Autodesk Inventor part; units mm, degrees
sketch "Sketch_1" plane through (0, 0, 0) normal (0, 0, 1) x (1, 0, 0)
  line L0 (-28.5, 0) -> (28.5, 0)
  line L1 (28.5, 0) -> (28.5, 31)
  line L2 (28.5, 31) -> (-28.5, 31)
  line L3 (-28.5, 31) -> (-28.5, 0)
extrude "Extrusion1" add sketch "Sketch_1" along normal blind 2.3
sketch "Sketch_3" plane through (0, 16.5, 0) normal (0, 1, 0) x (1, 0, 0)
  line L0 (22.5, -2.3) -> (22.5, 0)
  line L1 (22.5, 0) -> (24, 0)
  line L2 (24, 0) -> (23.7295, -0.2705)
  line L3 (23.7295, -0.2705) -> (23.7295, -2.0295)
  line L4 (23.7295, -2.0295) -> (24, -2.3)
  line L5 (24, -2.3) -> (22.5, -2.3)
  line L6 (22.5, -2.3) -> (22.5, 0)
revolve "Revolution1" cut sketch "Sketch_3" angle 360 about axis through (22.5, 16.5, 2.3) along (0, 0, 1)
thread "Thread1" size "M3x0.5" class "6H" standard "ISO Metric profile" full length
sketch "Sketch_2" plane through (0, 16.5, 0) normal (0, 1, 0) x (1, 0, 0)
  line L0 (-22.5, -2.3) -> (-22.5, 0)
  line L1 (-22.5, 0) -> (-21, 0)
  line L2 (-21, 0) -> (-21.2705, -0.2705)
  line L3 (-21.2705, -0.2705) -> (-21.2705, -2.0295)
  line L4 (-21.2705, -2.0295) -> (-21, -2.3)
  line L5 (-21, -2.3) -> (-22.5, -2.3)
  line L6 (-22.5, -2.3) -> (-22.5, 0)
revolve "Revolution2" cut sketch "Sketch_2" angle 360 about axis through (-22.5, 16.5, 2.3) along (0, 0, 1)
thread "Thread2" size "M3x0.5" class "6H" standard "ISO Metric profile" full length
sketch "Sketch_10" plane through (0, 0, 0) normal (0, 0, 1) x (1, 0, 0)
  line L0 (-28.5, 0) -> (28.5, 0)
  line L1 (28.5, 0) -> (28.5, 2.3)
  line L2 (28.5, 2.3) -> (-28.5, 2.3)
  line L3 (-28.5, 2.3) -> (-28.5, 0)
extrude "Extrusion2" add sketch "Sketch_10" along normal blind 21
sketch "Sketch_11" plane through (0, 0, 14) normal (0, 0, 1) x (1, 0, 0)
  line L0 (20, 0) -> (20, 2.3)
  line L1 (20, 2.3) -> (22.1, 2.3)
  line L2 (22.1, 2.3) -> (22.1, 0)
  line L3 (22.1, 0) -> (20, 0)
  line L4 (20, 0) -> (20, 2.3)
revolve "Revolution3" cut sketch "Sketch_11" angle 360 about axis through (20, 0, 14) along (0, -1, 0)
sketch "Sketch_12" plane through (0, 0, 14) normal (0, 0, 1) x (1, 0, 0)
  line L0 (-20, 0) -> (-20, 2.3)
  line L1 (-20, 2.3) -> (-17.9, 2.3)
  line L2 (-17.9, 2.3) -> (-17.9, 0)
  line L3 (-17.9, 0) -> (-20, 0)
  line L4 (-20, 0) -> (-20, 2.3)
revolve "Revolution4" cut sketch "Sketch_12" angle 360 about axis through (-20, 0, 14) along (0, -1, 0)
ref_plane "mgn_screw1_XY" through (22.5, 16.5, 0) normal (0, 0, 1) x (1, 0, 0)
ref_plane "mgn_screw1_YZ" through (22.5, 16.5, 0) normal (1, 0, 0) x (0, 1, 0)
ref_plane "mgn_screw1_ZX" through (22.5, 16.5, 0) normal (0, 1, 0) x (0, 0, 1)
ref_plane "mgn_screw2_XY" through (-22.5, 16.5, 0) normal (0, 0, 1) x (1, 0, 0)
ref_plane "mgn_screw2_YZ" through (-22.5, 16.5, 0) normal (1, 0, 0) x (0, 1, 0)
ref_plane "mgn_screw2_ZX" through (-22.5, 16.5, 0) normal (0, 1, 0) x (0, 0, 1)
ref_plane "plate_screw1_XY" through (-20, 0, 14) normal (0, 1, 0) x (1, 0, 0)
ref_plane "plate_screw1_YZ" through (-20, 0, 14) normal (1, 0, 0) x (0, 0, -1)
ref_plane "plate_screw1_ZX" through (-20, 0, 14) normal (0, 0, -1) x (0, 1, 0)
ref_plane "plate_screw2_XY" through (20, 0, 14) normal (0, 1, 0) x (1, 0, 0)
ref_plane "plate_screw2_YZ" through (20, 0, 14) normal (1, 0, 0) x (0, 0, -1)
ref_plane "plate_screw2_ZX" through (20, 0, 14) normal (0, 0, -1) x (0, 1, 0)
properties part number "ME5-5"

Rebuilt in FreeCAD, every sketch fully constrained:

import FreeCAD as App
import Part
import Sketcher
from FreeCAD import Vector
Q = App.Units.Quantity

doc = App.newDocument("Part")
body = doc.addObject("PartDesign::Body", "Body")

# Sketch on XY plane
sketch1 = body.newObject("Sketcher::SketchObject", "Sketch")
sketch1.AttachmentSupport = (doc.getObject("XY_Plane"), [""])
sketch1.MapMode = "FlatFace"
sketch1.addGeometry([
    Part.LineSegment(Vector(-28, 31, 0), Vector(-28, 0, 0)),
    Part.LineSegment(Vector(-28, 0, 0), Vector(28, 0, 0)),
    Part.LineSegment(Vector(28, 0, 0), Vector(28, 31, 0)),
    Part.LineSegment(Vector(28, 31, 0), Vector(-28, 31, 0)),
], False)
sketch1.addConstraint([
    Sketcher.Constraint("Coincident", 0, 2, 1, 1),
    Sketcher.Constraint("Coincident", 1, 2, 2, 1),
    Sketcher.Constraint("Coincident", 2, 2, 3, 1),
    Sketcher.Constraint("Coincident", 3, 2, 0, 1),
    Sketcher.Constraint("Vertical", 0),
    Sketcher.Constraint("Horizontal", 1),
    Sketcher.Constraint("Vertical", 2),
    Sketcher.Constraint("Horizontal", 3),
    Sketcher.Constraint("Symmetric", 0, 2, 1, 2, -1, 1),
    Sketcher.Constraint("DistanceX", 1, 1, 1, 2, Q("57 mm")),
    Sketcher.Constraint("DistanceY", 0, 2, 0, 1, Q("31 mm")),
])
pad1 = body.newObject("PartDesign::Pad", "Pad")
pad1.Profile = sketch1
pad1.Length = 2.3

# Sketch on XZ plane
sketch2 = body.newObject("Sketcher::SketchObject", "Sketch001")
sketch2.AttachmentSupport = (doc.getObject("XZ_Plane"), [""])
sketch2.MapMode = "FlatFace"
sketch2.AttachmentOffset = App.Placement(Vector(0, 0, -16.5), App.Rotation())
sketch2.addGeometry([
    Part.LineSegment(Vector(22.5, 0, 0), Vector(22.5, 2.3, 0)),  # 0
    Part.LineSegment(Vector(22.5, 2.3, 0), Vector(24, 2.3, 0)),  # 1
    Part.LineSegment(Vector(24, 2.3, 0), Vector(23.73, 2.03, 0)),  # 2
    Part.LineSegment(Vector(23.73, 2.03, 0), Vector(23.73, 0.27, 0)),  # 3
    Part.LineSegment(Vector(23.73, 0.27, 0), Vector(24, 0, 0)),  # 4
    Part.LineSegment(Vector(24, 0, 0), Vector(22.5, 0, 0)),  # 5
], False)
sketch2.addGeometry(Part.LineSegment(Vector(22.5, 0, 0), Vector(22.5, 2.3, 0)), True)  # axis
sketch2.addConstraint([
    Sketcher.Constraint("Coincident", 0, 2, 1, 1),
    Sketcher.Constraint("Coincident", 1, 2, 2, 1),
    Sketcher.Constraint("Coincident", 2, 2, 3, 1),
    Sketcher.Constraint("Coincident", 3, 2, 4, 1),
    Sketcher.Constraint("Coincident", 4, 2, 5, 1),
    Sketcher.Constraint("Coincident", 5, 2, 0, 1),
    Sketcher.Constraint("Vertical", 0),
    Sketcher.Constraint("Horizontal", 1),
    Sketcher.Constraint("Vertical", 3),
    Sketcher.Constraint("Horizontal", 5),
    Sketcher.Constraint("Vertical", 6),
    Sketcher.Constraint("Coincident", 6, 1, 5, 2),
    Sketcher.Constraint("PointOnObject", 4, 2, -1),
    Sketcher.Constraint("Perpendicular", 2, 4),
    Sketcher.Constraint("Horizontal", 1, 2, 6, 2),
    Sketcher.Constraint("Vertical", 1, 2, 4, 2),
    Sketcher.Constraint("Equal", 2, 4),
    Sketcher.Constraint("DistanceX", 1, 1, 1, 2, Q("1.5 mm")),
    Sketcher.Constraint("DistanceY", 0, 1, 0, 2, Q("2.3 mm")),
    Sketcher.Constraint("DistanceX", -1, 1, 1, 2, Q("24 mm")),
    Sketcher.Constraint("DistanceY", 3, 2, 3, 1, Q("1.759 mm")),
])
groove = body.newObject("PartDesign::Groove", "Groove")
groove.Profile = sketch2
groove.ReferenceAxis = (sketch2, ["Axis0"])
groove.Angle = 360

# Sketch on XZ plane
sketch3 = body.newObject("Sketcher::SketchObject", "Sketch002")
sketch3.AttachmentSupport = (doc.getObject("XZ_Plane"), [""])
sketch3.MapMode = "FlatFace"
sketch3.AttachmentOffset = App.Placement(Vector(0, 0, -16.5), App.Rotation())
sketch3.addGeometry([
    Part.LineSegment(Vector(-22.5, 0, 0), Vector(-22.5, 2.3, 0)),  # 0
    Part.LineSegment(Vector(-22.5, 2.3, 0), Vector(-21, 2.3, 0)),  # 1
    Part.LineSegment(Vector(-21, 2.3, 0), Vector(-21.27, 2.03, 0)),  # 2
    Part.LineSegment(Vector(-21.27, 2.03, 0), Vector(-21.27, 0.27, 0)),  # 3
    Part.LineSegment(Vector(-21.27, 0.27, 0), Vector(-21, 0, 0)),  # 4
    Part.LineSegment(Vector(-21, 0, 0), Vector(-22.5, 0, 0)),  # 5
], False)
sketch3.addGeometry(Part.LineSegment(Vector(-22.5, 0, 0), Vector(-22.5, 2.3, 0)), True)  # axis
sketch3.addConstraint([
    Sketcher.Constraint("Coincident", 0, 2, 1, 1),
    Sketcher.Constraint("Coincident", 1, 2, 2, 1),
    Sketcher.Constraint("Coincident", 2, 2, 3, 1),
    Sketcher.Constraint("Coincident", 3, 2, 4, 1),
    Sketcher.Constraint("Coincident", 4, 2, 5, 1),
    Sketcher.Constraint("Coincident", 5, 2, 0, 1),
    Sketcher.Constraint("Vertical", 0),
    Sketcher.Constraint("Horizontal", 1),
    Sketcher.Constraint("Vertical", 3),
    Sketcher.Constraint("Horizontal", 5),
    Sketcher.Constraint("Vertical", 6),
    Sketcher.Constraint("Coincident", 6, 1, 5, 2),
    Sketcher.Constraint("PointOnObject", 4, 2, -1),
    Sketcher.Constraint("Perpendicular", 2, 4),
    Sketcher.Constraint("Horizontal", 1, 2, 6, 2),
    Sketcher.Constraint("Vertical", 1, 2, 4, 2),
    Sketcher.Constraint("Equal", 2, 4),
    Sketcher.Constraint("DistanceX", 1, 1, 1, 2, Q("1.5 mm")),
    Sketcher.Constraint("DistanceY", 0, 1, 0, 2, Q("2.3 mm")),
    Sketcher.Constraint("DistanceX", 1, 2, -1, 1, Q("21 mm")),
    Sketcher.Constraint("DistanceY", 3, 2, 3, 1, Q("1.759 mm")),
])
groove2 = body.newObject("PartDesign::Groove", "Groove001")
groove2.Profile = sketch3
groove2.ReferenceAxis = (sketch3, ["Axis0"])
groove2.Angle = 360

# Sketch on XY plane
sketch4 = body.newObject("Sketcher::SketchObject", "Sketch003")
sketch4.AttachmentSupport = (doc.getObject("XY_Plane"), [""])
sketch4.MapMode = "FlatFace"
sketch4.addGeometry([
    Part.LineSegment(Vector(-28.5, 2.3, 0), Vector(-28.5, 0, 0)),
    Part.LineSegment(Vector(-28.5, 0, 0), Vector(28.5, 0, 0)),
    Part.LineSegment(Vector(28.5, 0, 0), Vector(28.5, 2.3, 0)),
    Part.LineSegment(Vector(28.5, 2.3, 0), Vector(-28.5, 2.3, 0)),
], False)
sketch4.addConstraint([
    Sketcher.Constraint("Coincident", 0, 2, 1, 1),
    Sketcher.Constraint("Coincident", 1, 2, 2, 1),
    Sketcher.Constraint("Coincident", 2, 2, 3, 1),
    Sketcher.Constraint("Coincident", 3, 2, 0, 1),
    Sketcher.Constraint("Vertical", 0),
    Sketcher.Constraint("Horizontal", 1),
    Sketcher.Constraint("Vertical", 2),
    Sketcher.Constraint("Horizontal", 3),
    Sketcher.Constraint("Symmetric", 0, 2, 1, 2, -1, 1),
    Sketcher.Constraint("DistanceX", 1, 1, 1, 2, Q("57 mm")),
    Sketcher.Constraint("DistanceY", 0, 2, 0, 1, Q("2.3 mm")),
])
pad2 = body.newObject("PartDesign::Pad", "Pad001")
pad2.Profile = sketch4
pad2.Length = 21

# Sketch on XY plane
sketch5 = body.newObject("Sketcher::SketchObject", "Sketch004")
sketch5.AttachmentSupport = (doc.getObject("XY_Plane"), [""])
sketch5.MapMode = "FlatFace"
sketch5.AttachmentOffset = App.Placement(Vector(0, 0, 14), App.Rotation())
sketch5.addGeometry([
    Part.LineSegment(Vector(20, 2.3, 0), Vector(20, 0, 0)),
    Part.LineSegment(Vector(20, 0, 0), Vector(22.1, 0, 0)),
    Part.LineSegment(Vector(22.1, 0, 0), Vector(22.1, 2.3, 0)),
    Part.LineSegment(Vector(22.1, 2.3, 0), Vector(20, 2.3, 0)),
], False)
sketch5.addGeometry(Part.LineSegment(Vector(20, 2.3, 0), Vector(20, 0, 0)), True)  # axis
sketch5.addConstraint([
    Sketcher.Constraint("Coincident", 0, 2, 1, 1),
    Sketcher.Constraint("Coincident", 1, 2, 2, 1),
    Sketcher.Constraint("Coincident", 2, 2, 3, 1),
    Sketcher.Constraint("Coincident", 3, 2, 0, 1),
    Sketcher.Constraint("Vertical", 0),
    Sketcher.Constraint("Horizontal", 1),
    Sketcher.Constraint("Vertical", 2),
    Sketcher.Constraint("Horizontal", 3),
    Sketcher.Constraint("Vertical", 4),
    Sketcher.Constraint("Coincident", 4, 1, 3, 2),
    Sketcher.Constraint("PointOnObject", 0, 2, -1),
    Sketcher.Constraint("PointOnObject", 4, 2, -1),
    Sketcher.Constraint("DistanceX", 1, 1, 1, 2, Q("2.1 mm")),
    Sketcher.Constraint("DistanceY", 0, 2, 0, 1, Q("2.3 mm")),
    Sketcher.Constraint("DistanceX", -1, 1, 0, 2, Q("20 mm")),
])
groove3 = body.newObject("PartDesign::Groove", "Groove002")
groove3.Profile = sketch5
groove3.ReferenceAxis = (sketch5, ["Axis0"])
groove3.Angle = 360

# Sketch on XY plane
sketch6 = body.newObject("Sketcher::SketchObject", "Sketch005")
sketch6.AttachmentSupport = (doc.getObject("XY_Plane"), [""])
sketch6.MapMode = "FlatFace"
sketch6.AttachmentOffset = App.Placement(Vector(0, 0, 14), App.Rotation())
sketch6.addGeometry([
    Part.LineSegment(Vector(-20, 2.3, 0), Vector(-20, 0, 0)),
    Part.LineSegment(Vector(-20, 0, 0), Vector(-17.9, 0, 0)),
    Part.LineSegment(Vector(-17.9, 0, 0), Vector(-17.9, 2.3, 0)),
    Part.LineSegment(Vector(-17.9, 2.3, 0), Vector(-20, 2.3, 0)),
], False)
sketch6.addGeometry(Part.LineSegment(Vector(-20, 2.3, 0), Vector(-20, 0, 0)), True)  # axis
sketch6.addConstraint([
    Sketcher.Constraint("Coincident", 0, 2, 1, 1),
    Sketcher.Constraint("Coincident", 1, 2, 2, 1),
    Sketcher.Constraint("Coincident", 2, 2, 3, 1),
    Sketcher.Constraint("Coincident", 3, 2, 0, 1),
    Sketcher.Constraint("Vertical", 0),
    Sketcher.Constraint("Horizontal", 1),
    Sketcher.Constraint("Vertical", 2),
    Sketcher.Constraint("Horizontal", 3),
    Sketcher.Constraint("Vertical", 4),
    Sketcher.Constraint("Coincident", 4, 1, 3, 2),
    Sketcher.Constraint("PointOnObject", 0, 2, -1),
    Sketcher.Constraint("PointOnObject", 4, 2, -1),
    Sketcher.Constraint("DistanceX", 1, 1, 1, 2, Q("2.1 mm")),
    Sketcher.Constraint("DistanceY", 0, 2, 0, 1, Q("2.3 mm")),
    Sketcher.Constraint("DistanceX", 0, 2, -1, 1, Q("20 mm")),
])
groove4 = body.newObject("PartDesign::Groove", "Groove003")
groove4.Profile = sketch6
groove4.ReferenceAxis = (sketch6, ["Axis0"])
groove4.Angle = 360

doc.recompute()
